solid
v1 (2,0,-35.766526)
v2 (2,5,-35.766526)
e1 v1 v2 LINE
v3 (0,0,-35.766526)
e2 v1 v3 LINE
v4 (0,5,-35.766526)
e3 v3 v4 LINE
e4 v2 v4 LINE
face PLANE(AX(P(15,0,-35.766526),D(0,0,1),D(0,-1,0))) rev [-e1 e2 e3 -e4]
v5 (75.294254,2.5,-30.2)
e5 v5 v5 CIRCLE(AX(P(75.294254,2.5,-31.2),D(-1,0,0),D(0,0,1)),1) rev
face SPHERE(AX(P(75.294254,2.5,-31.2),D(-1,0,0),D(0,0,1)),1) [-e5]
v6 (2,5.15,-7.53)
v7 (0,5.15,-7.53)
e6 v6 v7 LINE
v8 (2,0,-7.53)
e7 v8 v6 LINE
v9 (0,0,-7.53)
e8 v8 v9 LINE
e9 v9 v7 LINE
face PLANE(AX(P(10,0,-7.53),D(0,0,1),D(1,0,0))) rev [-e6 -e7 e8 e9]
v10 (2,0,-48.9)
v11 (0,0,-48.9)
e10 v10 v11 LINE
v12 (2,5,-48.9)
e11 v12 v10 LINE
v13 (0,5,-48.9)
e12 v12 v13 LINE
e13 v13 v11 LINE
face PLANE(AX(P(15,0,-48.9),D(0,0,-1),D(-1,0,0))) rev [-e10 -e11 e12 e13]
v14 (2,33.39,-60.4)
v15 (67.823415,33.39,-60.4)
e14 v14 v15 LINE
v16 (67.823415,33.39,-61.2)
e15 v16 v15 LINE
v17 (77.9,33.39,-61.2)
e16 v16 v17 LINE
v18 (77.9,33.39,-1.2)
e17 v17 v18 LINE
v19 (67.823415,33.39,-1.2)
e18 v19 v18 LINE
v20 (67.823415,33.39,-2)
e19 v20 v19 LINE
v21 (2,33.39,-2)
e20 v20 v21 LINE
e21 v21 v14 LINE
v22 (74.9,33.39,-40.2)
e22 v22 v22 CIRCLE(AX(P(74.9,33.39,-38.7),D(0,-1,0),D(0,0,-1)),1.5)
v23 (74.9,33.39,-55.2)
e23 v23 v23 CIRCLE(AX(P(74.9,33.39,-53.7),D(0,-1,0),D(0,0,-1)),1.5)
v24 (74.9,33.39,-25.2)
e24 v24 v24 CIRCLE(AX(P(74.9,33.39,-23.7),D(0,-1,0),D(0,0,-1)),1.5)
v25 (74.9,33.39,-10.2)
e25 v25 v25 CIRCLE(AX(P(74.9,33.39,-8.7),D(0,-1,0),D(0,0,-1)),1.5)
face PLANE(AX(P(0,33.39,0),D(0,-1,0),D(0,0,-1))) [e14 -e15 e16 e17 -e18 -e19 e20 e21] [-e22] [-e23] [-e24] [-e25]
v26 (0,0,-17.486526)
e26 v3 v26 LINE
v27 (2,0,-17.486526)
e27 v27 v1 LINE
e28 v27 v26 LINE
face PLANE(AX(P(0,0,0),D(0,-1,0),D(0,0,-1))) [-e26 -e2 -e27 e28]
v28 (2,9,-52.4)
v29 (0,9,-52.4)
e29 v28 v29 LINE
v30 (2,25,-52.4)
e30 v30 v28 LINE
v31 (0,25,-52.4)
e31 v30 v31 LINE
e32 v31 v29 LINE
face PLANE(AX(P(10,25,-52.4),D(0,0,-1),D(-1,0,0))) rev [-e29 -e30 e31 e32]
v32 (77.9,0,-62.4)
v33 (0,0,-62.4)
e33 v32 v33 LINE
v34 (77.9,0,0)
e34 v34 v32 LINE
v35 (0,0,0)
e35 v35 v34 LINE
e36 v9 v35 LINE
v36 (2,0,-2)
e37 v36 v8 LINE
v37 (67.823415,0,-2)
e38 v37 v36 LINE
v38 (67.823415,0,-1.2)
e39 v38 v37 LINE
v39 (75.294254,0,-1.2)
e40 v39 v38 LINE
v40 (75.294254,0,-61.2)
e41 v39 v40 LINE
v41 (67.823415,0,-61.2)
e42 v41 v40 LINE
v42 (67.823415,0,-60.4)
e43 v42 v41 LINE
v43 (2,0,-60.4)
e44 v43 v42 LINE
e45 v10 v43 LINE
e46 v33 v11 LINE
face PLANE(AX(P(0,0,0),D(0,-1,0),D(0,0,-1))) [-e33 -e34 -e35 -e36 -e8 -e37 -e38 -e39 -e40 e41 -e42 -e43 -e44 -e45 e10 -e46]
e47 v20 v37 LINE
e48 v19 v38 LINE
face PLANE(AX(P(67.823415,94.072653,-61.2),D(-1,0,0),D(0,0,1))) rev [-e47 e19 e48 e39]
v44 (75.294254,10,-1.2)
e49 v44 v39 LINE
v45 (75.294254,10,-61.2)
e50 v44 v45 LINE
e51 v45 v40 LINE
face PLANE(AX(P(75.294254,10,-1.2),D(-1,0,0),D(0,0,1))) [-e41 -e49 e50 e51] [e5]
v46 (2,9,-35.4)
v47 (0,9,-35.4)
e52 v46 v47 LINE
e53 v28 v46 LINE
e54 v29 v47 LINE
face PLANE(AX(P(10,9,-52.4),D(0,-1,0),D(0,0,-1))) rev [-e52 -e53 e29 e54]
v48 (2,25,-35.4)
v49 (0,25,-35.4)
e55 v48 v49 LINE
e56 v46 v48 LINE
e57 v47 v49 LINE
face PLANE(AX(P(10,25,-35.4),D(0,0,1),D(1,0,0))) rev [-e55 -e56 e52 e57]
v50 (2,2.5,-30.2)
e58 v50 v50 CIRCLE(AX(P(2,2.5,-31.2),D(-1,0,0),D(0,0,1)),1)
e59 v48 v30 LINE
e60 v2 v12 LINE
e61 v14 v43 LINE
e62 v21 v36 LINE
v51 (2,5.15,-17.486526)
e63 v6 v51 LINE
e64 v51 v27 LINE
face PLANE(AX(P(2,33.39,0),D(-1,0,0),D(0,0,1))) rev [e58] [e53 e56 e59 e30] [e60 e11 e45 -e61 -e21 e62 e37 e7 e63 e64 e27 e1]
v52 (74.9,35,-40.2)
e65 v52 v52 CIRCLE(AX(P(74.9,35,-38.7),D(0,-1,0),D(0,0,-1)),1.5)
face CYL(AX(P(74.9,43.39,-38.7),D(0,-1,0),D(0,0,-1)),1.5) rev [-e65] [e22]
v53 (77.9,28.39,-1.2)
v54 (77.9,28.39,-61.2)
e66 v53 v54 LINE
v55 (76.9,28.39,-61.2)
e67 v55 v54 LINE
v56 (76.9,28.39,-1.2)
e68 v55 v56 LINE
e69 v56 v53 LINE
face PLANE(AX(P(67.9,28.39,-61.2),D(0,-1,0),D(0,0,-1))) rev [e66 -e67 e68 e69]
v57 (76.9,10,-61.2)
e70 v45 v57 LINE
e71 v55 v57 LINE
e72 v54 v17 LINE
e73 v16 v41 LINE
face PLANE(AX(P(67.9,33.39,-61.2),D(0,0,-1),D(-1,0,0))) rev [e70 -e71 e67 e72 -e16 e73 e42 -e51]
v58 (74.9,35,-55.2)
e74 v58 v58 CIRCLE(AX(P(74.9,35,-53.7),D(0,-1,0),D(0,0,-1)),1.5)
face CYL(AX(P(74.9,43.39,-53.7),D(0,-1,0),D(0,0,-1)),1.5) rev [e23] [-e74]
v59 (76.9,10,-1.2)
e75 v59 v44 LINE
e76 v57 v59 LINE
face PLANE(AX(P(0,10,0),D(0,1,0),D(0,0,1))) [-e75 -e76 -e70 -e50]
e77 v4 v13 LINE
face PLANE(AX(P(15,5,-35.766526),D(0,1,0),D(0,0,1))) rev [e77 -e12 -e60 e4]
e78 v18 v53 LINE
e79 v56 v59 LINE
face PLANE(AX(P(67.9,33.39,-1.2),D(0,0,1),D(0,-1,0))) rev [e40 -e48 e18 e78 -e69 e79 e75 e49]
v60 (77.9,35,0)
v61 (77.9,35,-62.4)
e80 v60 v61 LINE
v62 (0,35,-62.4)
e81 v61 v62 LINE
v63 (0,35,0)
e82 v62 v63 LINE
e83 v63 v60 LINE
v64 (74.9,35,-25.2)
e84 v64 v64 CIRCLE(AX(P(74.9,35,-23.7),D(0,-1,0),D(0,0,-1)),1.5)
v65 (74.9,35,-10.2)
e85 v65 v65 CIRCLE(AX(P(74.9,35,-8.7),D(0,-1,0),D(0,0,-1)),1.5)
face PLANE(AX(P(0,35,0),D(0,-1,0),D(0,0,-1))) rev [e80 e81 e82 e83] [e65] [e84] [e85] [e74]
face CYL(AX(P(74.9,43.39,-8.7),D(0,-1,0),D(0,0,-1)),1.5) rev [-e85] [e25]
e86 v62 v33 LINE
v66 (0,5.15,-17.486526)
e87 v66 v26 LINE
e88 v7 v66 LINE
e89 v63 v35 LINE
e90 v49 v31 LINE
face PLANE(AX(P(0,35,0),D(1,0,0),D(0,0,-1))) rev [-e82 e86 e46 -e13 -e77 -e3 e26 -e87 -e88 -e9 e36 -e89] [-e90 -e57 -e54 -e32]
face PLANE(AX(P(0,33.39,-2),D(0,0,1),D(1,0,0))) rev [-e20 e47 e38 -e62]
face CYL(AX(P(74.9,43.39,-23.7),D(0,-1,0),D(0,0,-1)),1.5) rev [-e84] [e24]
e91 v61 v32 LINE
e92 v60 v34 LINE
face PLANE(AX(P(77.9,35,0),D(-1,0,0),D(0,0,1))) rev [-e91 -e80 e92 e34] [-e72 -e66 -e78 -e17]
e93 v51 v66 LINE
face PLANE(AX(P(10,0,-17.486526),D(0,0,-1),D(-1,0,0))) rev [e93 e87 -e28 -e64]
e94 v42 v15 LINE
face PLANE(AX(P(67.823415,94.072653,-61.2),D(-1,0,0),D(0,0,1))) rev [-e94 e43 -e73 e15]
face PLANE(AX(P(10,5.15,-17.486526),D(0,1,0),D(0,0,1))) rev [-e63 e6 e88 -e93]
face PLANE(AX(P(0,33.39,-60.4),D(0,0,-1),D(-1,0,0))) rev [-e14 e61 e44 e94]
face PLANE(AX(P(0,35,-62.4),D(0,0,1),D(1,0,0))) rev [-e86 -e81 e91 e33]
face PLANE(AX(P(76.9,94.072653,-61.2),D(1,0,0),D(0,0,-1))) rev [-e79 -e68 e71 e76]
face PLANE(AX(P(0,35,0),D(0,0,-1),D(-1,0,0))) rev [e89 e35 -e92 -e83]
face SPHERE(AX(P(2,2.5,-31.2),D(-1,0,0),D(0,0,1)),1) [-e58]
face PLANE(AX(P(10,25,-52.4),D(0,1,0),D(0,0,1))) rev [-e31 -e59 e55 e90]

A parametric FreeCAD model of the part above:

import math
import FreeCAD as App
import Part
import Sketcher

V = App.Vector
Q = App.Units.Quantity

doc = App.newDocument("Part")
body = doc.addObject("PartDesign::Body", "Body")

# Sketch on XZ plane
sketch1 = body.newObject("Sketcher::SketchObject", "Sketch")
sketch1.AttachmentSupport = (doc.getObject("XZ_Plane"), [""])
sketch1.MapMode = "FlatFace"
sketch1.addGeometry([
    Part.LineSegment(V(0, -62, 0), V(0, 0, 0)),
    Part.LineSegment(V(0, 0, 0), V(78, 0, 0)),
    Part.LineSegment(V(78, 0, 0), V(78, -62, 0)),
    Part.LineSegment(V(78, -62, 0), V(0, -62, 0)),
], False)
sketch1.addConstraint([
    Sketcher.Constraint("Coincident", 0, 2, 1, 1),
    Sketcher.Constraint("Coincident", 1, 2, 2, 1),
    Sketcher.Constraint("Coincident", 2, 2, 3, 1),
    Sketcher.Constraint("Coincident", 3, 2, 0, 1),
    Sketcher.Constraint("Vertical", 0),
    Sketcher.Constraint("Horizontal", 1),
    Sketcher.Constraint("Vertical", 2),
    Sketcher.Constraint("Horizontal", 3),
    Sketcher.Constraint("Coincident", 0, 2, -1, 1),
    Sketcher.Constraint("DistanceX", 1, 1, 1, 2, Q("77.9 mm")),
    Sketcher.Constraint("DistanceY", 0, 1, 0, 2, Q("62.4 mm")),
])
pad1 = body.newObject("PartDesign::Pad", "Pad")
pad1.Profile = sketch1
pad1.Length = 35
pad1.Reversed = True

# Sketch on XZ plane
sketch2 = body.newObject("Sketcher::SketchObject", "Sketch001")
sketch2.AttachmentSupport = (doc.getObject("XZ_Plane"), [""])
sketch2.MapMode = "FlatFace"
sketch2.addGeometry([
    Part.LineSegment(V(2, -2, 0), V(2, -60, 0)),
    Part.LineSegment(V(2, -60, 0), V(76, -60, 0)),
    Part.LineSegment(V(76, -60, 0), V(76, -2, 0)),
    Part.LineSegment(V(76, -2, 0), V(2, -2, 0)),
], False)
sketch2.addConstraint([
    Sketcher.Constraint("Coincident", 0, 2, 1, 1),
    Sketcher.Constraint("Coincident", 1, 2, 2, 1),
    Sketcher.Constraint("Coincident", 2, 2, 3, 1),
    Sketcher.Constraint("Coincident", 3, 2, 0, 1),
    Sketcher.Constraint("Vertical", 0),
    Sketcher.Constraint("Horizontal", 1),
    Sketcher.Constraint("Vertical", 2),
    Sketcher.Constraint("Horizontal", 3),
    Sketcher.Constraint("DistanceX", 1, 1, 1, 2, Q("73.9 mm")),
    Sketcher.Constraint("DistanceY", 0, 2, 0, 1, Q("58.4 mm")),
    Sketcher.Constraint("DistanceX", -1, 1, 0, 2, Q("2 mm")),
    Sketcher.Constraint("DistanceY", 2, 2, -1, 1, Q("2 mm")),
])
pocket1 = body.newObject("PartDesign::Pocket", "Pocket")
pocket1.Profile = sketch2
pocket1.Length = 33.39

# Sketch on YZ plane
sketch3 = body.newObject("Sketcher::SketchObject", "Sketch002")
sketch3.AttachmentSupport = (doc.getObject("YZ_Plane"), [""])
sketch3.MapMode = "FlatFace"
sketch3.addGeometry([
    Part.LineSegment(V(5, -49, 0), V(0, -49, 0)),
    Part.LineSegment(V(0, -49, 0), V(0, -36, 0)),
    Part.LineSegment(V(0, -36, 0), V(5, -36, 0)),
    Part.LineSegment(V(5, -36, 0), V(5, -49, 0)),
], False)
sketch3.addConstraint([
    Sketcher.Constraint("Coincident", 0, 2, 1, 1),
    Sketcher.Constraint("Coincident", 1, 2, 2, 1),
    Sketcher.Constraint("Coincident", 2, 2, 3, 1),
    Sketcher.Constraint("Coincident", 3, 2, 0, 1),
    Sketcher.Constraint("Horizontal", 0),
    Sketcher.Constraint("Vertical", 1),
    Sketcher.Constraint("Horizontal", 2),
    Sketcher.Constraint("Vertical", 3),
    Sketcher.Constraint("PointOnObject", 0, 2, -2),
    Sketcher.Constraint("DistanceX", 0, 2, 0, 1, Q("5 mm")),
    Sketcher.Constraint("DistanceY", 0, 2, -1, 1, Q("48.9 mm")),
    Sketcher.Constraint("DistanceY", 1, 1, 1, 2, Q("13.133474 mm")),
])
pocket2 = body.newObject("PartDesign::Pocket", "Pocket001")
pocket2.Profile = sketch3
pocket2.Length = 15
pocket2.Reversed = True

# Sketch on YZ plane
sketch4 = body.newObject("Sketcher::SketchObject", "Sketch003")
sketch4.AttachmentSupport = (doc.getObject("YZ_Plane"), [""])
sketch4.MapMode = "FlatFace"
sketch4.addGeometry([
    Part.LineSegment(V(5, -17, 0), V(0, -17, 0)),
    Part.LineSegment(V(0, -17, 0), V(0, -8, 0)),
    Part.LineSegment(V(0, -8, 0), V(5, -8, 0)),
    Part.LineSegment(V(5, -8, 0), V(5, -17, 0)),
], False)
sketch4.addConstraint([
    Sketcher.Constraint("Coincident", 0, 2, 1, 1),
    Sketcher.Constraint("Coincident", 1, 2, 2, 1),
    Sketcher.Constraint("Coincident", 2, 2, 3, 1),
    Sketcher.Constraint("Coincident", 3, 2, 0, 1),
    Sketcher.Constraint("Horizontal", 0),
    Sketcher.Constraint("Vertical", 1),
    Sketcher.Constraint("Horizontal", 2),
    Sketcher.Constraint("Vertical", 3),
    Sketcher.Constraint("PointOnObject", 0, 2, -2),
    Sketcher.Constraint("DistanceX", 0, 2, 0, 1, Q("5.15 mm")),
    Sketcher.Constraint("DistanceY", 1, 2, -1, 1, Q("7.53 mm")),
    Sketcher.Constraint("DistanceY", 1, 1, 1, 2, Q("9.956526 mm")),
])
pocket3 = body.newObject("PartDesign::Pocket", "Pocket002")
pocket3.Profile = sketch4
pocket3.Length = 10
pocket3.Reversed = True

# Sketch on YZ plane
sketch5 = body.newObject("Sketcher::SketchObject", "Sketch004")
sketch5.AttachmentSupport = (doc.getObject("YZ_Plane"), [""])
sketch5.MapMode = "FlatFace"
sketch5.addGeometry([
    Part.LineSegment(V(25, -52, 0), V(9, -52, 0)),
    Part.LineSegment(V(9, -52, 0), V(9, -35, 0)),
    Part.LineSegment(V(9, -35, 0), V(25, -35, 0)),
    Part.LineSegment(V(25, -35, 0), V(25, -52, 0)),
], False)
sketch5.addConstraint([
    Sketcher.Constraint("Coincident", 0, 2, 1, 1),
    Sketcher.Constraint("Coincident", 1, 2, 2, 1),
    Sketcher.Constraint("Coincident", 2, 2, 3, 1),
    Sketcher.Constraint("Coincident", 3, 2, 0, 1),
    Sketcher.Constraint("Horizontal", 0),
    Sketcher.Constraint("Vertical", 1),
    Sketcher.Constraint("Horizontal", 2),
    Sketcher.Constraint("Vertical", 3),
    Sketcher.Constraint("DistanceX", 0, 2, 0, 1, Q("16 mm")),
    Sketcher.Constraint("DistanceY", 1, 1, 1, 2, Q("17 mm")),
    Sketcher.Constraint("DistanceX", -1, 1, 0, 2, Q("9 mm")),
    Sketcher.Constraint("DistanceY", 0, 2, -1, 1, Q("52.4 mm")),
])
pocket4 = body.newObject("PartDesign::Pocket", "Pocket003")
pocket4.Profile = sketch5
pocket4.Length = 10
pocket4.Reversed = True

# Sketch on YZ plane
sketch6 = body.newObject("Sketcher::SketchObject", "Sketch005")
sketch6.AttachmentSupport = (doc.getObject("YZ_Plane"), [""])
sketch6.MapMode = "FlatFace"
sketch6.AttachmentOffset = App.Placement(V(0, 0, 77.9), App.Rotation())
sketch6.addGeometry([
    Part.LineSegment(V(33, -1, 0), V(28, -1, 0)),
    Part.LineSegment(V(28, -1, 0), V(28, -61, 0)),
    Part.LineSegment(V(28, -61, 0), V(33, -61, 0)),
    Part.LineSegment(V(33, -61, 0), V(33, -1, 0)),
], False)
sketch6.addConstraint([
    Sketcher.Constraint("Coincident", 0, 2, 1, 1),
    Sketcher.Constraint("Coincident", 1, 2, 2, 1),
    Sketcher.Constraint("Coincident", 2, 2, 3, 1),
    Sketcher.Constraint("Coincident", 3, 2, 0, 1),
    Sketcher.Constraint("Horizontal", 0),
    Sketcher.Constraint("Vertical", 1),
    Sketcher.Constraint("Horizontal", 2),
    Sketcher.Constraint("Vertical", 3),
    Sketcher.Constraint("DistanceX", 0, 2, 0, 1, Q("5 mm")),
    Sketcher.Constraint("DistanceY", 1, 2, 1, 1, Q("60 mm")),
    Sketcher.Constraint("DistanceY", 0, 2, -1, 1, Q("1.2 mm")),
    Sketcher.Constraint("DistanceX", -1, 1, 0, 2, Q("28.39 mm")),
])
pocket5 = body.newObject("PartDesign::Pocket", "Pocket004")
pocket5.Profile = sketch6
pocket5.Length = 10

# Sketch on XZ plane
sketch7 = body.newObject("Sketcher::SketchObject", "Sketch006")
sketch7.AttachmentSupport = (doc.getObject("XZ_Plane"), [""])
sketch7.MapMode = "FlatFace"
sketch7.AttachmentOffset = App.Placement(V(0, 0, -33.39), App.Rotation())
sketch7.addGeometry([
    Part.LineSegment(V(77, -61, 0), V(77, -1, 0)),
    Part.LineSegment(V(77, -1, 0), V(68, -1, 0)),
    Part.LineSegment(V(68, -1, 0), V(68, -61, 0)),
    Part.LineSegment(V(68, -61, 0), V(77, -61, 0)),
], False)
sketch7.addConstraint([
    Sketcher.Constraint("Coincident", 0, 2, 1, 1),
    Sketcher.Constraint("Coincident", 1, 2, 2, 1),
    Sketcher.Constraint("Coincident", 2, 2, 3, 1),
    Sketcher.Constraint("Coincident", 3, 2, 0, 1),
    Sketcher.Constraint("Vertical", 0),
    Sketcher.Constraint("Horizontal", 1),
    Sketcher.Constraint("Vertical", 2),
    Sketcher.Constraint("Horizontal", 3),
    Sketcher.Constraint("DistanceY", 0, 1, 0, 2, Q("60 mm")),
    Sketcher.Constraint("DistanceX", -1, 1, 0, 2, Q("76.9 mm")),
    Sketcher.Constraint("DistanceY", 0, 2, -1, 1, Q("1.2 mm")),
    Sketcher.Constraint("DistanceX", 1, 2, 1, 1, Q("9.076585 mm")),
])
pocket6 = body.newObject("PartDesign::Pocket", "Pocket005")
pocket6.Profile = sketch7
pocket6.Length = 33.39
pocket6.Reversed = True

# Sketch on XZ plane
sketch8 = body.newObject("Sketcher::SketchObject", "Sketch007")
sketch8.AttachmentSupport = (doc.getObject("XZ_Plane"), [""])
sketch8.MapMode = "FlatFace"
sketch8.AttachmentOffset = App.Placement(V(0, 0, -33.39), App.Rotation())
sketch8.addGeometry([
    Part.Circle(V(74.9, -8.7, 0), V(0, 0, 1), 1.5),
    Part.Circle(V(74.9, -23.7, 0), V(0, 0, 1), 1.5),
    Part.Circle(V(74.9, -38.7, 0), V(0, 0, 1), 1.5),
    Part.Circle(V(74.9, -53.7, 0), V(0, 0, 1), 1.5),
], False)
sketch8.addConstraint([
    Sketcher.Constraint("Equal", 0, 1),
    Sketcher.Constraint("Equal", 1, 2),
    Sketcher.Constraint("Equal", 2, 3),
    Sketcher.Constraint("Vertical", 0, 3, 1, 3),
    Sketcher.Constraint("Vertical", 1, 3, 2, 3),
    Sketcher.Constraint("Vertical", 2, 3, 3, 3),
    Sketcher.Constraint("Diameter", 0, Q("3 mm")),
    Sketcher.Constraint("DistanceY", 1, 3, 0, 3, Q("15 mm")),
    Sketcher.Constraint("DistanceY", 2, 3, 1, 3, Q("15 mm")),
    Sketcher.Constraint("DistanceY", 3, 3, 2, 3, Q("15 mm")),
    Sketcher.Constraint("DistanceX", -1, 1, 0, 3, Q("74.9 mm")),
    Sketcher.Constraint("DistanceY", 0, 3, -1, 1, Q("8.7 mm")),
])
pocket7 = body.newObject("PartDesign::Pocket", "Pocket006")
pocket7.Profile = sketch8
pocket7.Length = 10

# Sketch on XZ plane
sketch9 = body.newObject("Sketcher::SketchObject", "Sketch008")
sketch9.AttachmentSupport = (doc.getObject("XZ_Plane"), [""])
sketch9.MapMode = "FlatFace"
sketch9.addGeometry([
    Part.LineSegment(V(76.9, -61.2, 0), V(76.9, -1.2, 0)),
    Part.LineSegment(V(76.9, -1.2, 0), V(75.3, -1.2, 0)),
    Part.LineSegment(V(75.3, -1.2, 0), V(75.3, -61.2, 0)),
    Part.LineSegment(V(75.3, -61.2, 0), V(76.9, -61.2, 0)),
], False)
sketch9.addConstraint([
    Sketcher.Constraint("Coincident", 0, 2, 1, 1),
    Sketcher.Constraint("Coincident", 1, 2, 2, 1),
    Sketcher.Constraint("Coincident", 2, 2, 3, 1),
    Sketcher.Constraint("Coincident", 3, 2, 0, 1),
    Sketcher.Constraint("Vertical", 0),
    Sketcher.Constraint("Horizontal", 1),
    Sketcher.Constraint("Vertical", 2),
    Sketcher.Constraint("Horizontal", 3),
    Sketcher.Constraint("DistanceY", 0, 1, 0, 2, Q("60 mm")),
    Sketcher.Constraint("DistanceX", -1, 1, 0, 2, Q("76.9 mm")),
    Sketcher.Constraint("DistanceY", 0, 2, -1, 1, Q("1.2 mm")),
    Sketcher.Constraint("DistanceX", 1, 2, 1, 1, Q("1.605746 mm")),
])
pad2 = body.newObject("PartDesign::Pad", "Pad001")
pad2.Profile = sketch9
pad2.Length = 10
pad2.Reversed = True

# Sketch on YZ plane
sketch10 = body.newObject("Sketcher::SketchObject", "Sketch009")
sketch10.AttachmentSupport = (doc.getObject("YZ_Plane"), [""])
sketch10.MapMode = "FlatFace"
sketch10.AttachmentOffset = App.Placement(V(0, 0, 75.294254), App.Rotation())
sketch10.addGeometry([
    Part.LineSegment(V(3.5, -31.2, 0), V(1.5, -31.2, 0)),
    Part.ArcOfCircle(Part.Circle(V(2.5, -31.2, 0), V(0, 0, 1), 1), math.radians(0), math.radians(180)),
], False)
sketch10.addGeometry(Part.LineSegment(V(3.5, -31.2, 0), V(1.5, -31.2, 0)), True)  # axis
sketch10.addConstraint([
    Sketcher.Constraint("Coincident", 0, 1, 1, 1),
    Sketcher.Constraint("Coincident", 1, 2, 0, 2),
    Sketcher.Constraint("Horizontal", 0),
    Sketcher.Constraint("Horizontal", 2),
    Sketcher.Constraint("Coincident", 2, 1, 0, 1),
    Sketcher.Constraint("Horizontal", 1, 3, 0, 1),
    Sketcher.Constraint("Equal", 0, 2),
    Sketcher.Constraint("Radius", 1, Q("1 mm")),
    Sketcher.Constraint("DistanceX", -1, 1, 1, 3, Q("2.5 mm")),
    Sketcher.Constraint("DistanceY", 1, 3, -1, 1, Q("31.2 mm")),
])
revolution = body.newObject("PartDesign::Revolution", "Revolution")
revolution.Profile = sketch10
revolution.ReferenceAxis = (sketch10, ["Axis0"])
revolution.Angle = 360

# Sketch on YZ plane
sketch11 = body.newObject("Sketcher::SketchObject", "Sketch010")
sketch11.AttachmentSupport = (doc.getObject("YZ_Plane"), [""])
sketch11.MapMode = "FlatFace"
sketch11.AttachmentOffset = App.Placement(V(0, 0, 2), App.Rotation())
sketch11.addGeometry([
    Part.ArcOfCircle(Part.Circle(V(2.5, -31.2, 0), V(0, 0, 1), 1), math.radians(180), math.radians(360)),
    Part.LineSegment(V(1.5, -31.2, 0), V(3.5, -31.2, 0)),
], False)
sketch11.addGeometry(Part.LineSegment(V(3.5, -31.2, 0), V(1.5, -31.2, 0)), True)  # axis
sketch11.addConstraint([
    Sketcher.Constraint("Coincident", 0, 1, 1, 1),
    Sketcher.Constraint("Coincident", 1, 2, 0, 2),
    Sketcher.Constraint("Horizontal", 1),
    Sketcher.Constraint("Horizontal", 2),
    Sketcher.Constraint("Coincident", 2, 1, 1, 2),
    Sketcher.Constraint("Equal", 1, 2),
    Sketcher.Constraint("Radius", 0, Q("1 mm")),
    Sketcher.Constraint("DistanceX", -1, 1, 0, 3, Q("2.5 mm")),
    Sketcher.Constraint("DistanceY", 0, 3, -1, 1, Q("31.2 mm")),
    Sketcher.Constraint("DistanceY", 0, 1, -1, 1, Q("31.2 mm")),
])
revolution2 = body.newObject("PartDesign::Revolution", "Revolution001")
revolution2.Profile = sketch11
revolution2.ReferenceAxis = (sketch11, ["Axis0"])
revolution2.Angle = 360

doc.recompute()
